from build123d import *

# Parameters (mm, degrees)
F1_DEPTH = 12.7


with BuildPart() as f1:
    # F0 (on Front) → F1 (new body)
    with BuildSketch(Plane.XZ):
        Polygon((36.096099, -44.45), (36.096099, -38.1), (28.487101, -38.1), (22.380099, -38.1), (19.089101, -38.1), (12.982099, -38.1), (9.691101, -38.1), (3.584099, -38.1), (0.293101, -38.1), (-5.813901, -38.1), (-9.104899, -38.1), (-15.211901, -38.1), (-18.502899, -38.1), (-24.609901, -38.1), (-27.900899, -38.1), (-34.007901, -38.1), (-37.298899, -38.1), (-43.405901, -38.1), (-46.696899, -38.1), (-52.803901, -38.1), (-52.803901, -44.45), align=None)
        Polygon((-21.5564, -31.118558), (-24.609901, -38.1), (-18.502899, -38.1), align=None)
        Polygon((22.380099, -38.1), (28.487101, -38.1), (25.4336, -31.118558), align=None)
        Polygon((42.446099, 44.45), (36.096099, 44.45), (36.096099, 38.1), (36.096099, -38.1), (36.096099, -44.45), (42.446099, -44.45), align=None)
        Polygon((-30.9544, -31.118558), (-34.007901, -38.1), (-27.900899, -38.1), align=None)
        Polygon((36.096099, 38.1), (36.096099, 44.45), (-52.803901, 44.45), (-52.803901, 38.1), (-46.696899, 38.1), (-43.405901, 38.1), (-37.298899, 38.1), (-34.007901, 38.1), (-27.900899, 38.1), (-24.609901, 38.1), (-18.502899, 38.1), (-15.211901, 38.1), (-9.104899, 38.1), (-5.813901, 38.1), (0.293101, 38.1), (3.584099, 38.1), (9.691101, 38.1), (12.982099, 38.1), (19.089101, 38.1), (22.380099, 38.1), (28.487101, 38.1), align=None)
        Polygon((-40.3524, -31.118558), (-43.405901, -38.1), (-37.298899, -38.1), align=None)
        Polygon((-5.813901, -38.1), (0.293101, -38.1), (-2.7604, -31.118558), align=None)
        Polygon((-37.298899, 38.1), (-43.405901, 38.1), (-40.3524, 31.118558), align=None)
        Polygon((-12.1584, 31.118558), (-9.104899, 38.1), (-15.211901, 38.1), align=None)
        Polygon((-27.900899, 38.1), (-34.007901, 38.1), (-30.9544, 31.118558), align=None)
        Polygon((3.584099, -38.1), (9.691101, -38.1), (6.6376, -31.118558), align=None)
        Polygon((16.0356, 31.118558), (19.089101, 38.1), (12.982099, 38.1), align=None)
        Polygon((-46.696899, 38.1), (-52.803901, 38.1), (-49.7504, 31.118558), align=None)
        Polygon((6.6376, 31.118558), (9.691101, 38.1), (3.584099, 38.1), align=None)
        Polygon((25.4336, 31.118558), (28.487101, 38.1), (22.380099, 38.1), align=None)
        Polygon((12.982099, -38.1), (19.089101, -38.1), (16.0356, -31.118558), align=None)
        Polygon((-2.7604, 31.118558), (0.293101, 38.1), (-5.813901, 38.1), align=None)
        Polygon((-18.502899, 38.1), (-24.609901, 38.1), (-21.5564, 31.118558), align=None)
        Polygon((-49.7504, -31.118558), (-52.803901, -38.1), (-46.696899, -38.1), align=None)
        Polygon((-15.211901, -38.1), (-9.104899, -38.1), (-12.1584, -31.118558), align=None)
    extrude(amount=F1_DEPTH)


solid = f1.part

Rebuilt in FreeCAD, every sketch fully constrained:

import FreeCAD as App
import Part
import Sketcher
from FreeCAD import Vector
Q = App.Units.Quantity

doc = App.newDocument("Part")
body = doc.addObject("PartDesign::Body", "Body")

# Sketch on XZ plane
sketch1 = body.newObject("Sketcher::SketchObject", "Sketch")
sketch1.AttachmentSupport = (doc.getObject("XZ_Plane"), [""])
sketch1.MapMode = "FlatFace"
sketch1.addGeometry(Part.LineSegment(Vector(36.1, -38.1, 0), Vector(28.5, -38.1, 0)), False)
sketch1.addGeometry(Part.LineSegment(Vector(28.5, -38.1, 0), Vector(25.4, -31.1, 0)), False)
sketch1.addGeometry(Part.LineSegment(Vector(25.4, -31.1, 0), Vector(22.4, -38.1, 0)), False)
sketch1.addGeometry(Part.LineSegment(Vector(22.4, -38.1, 0), Vector(19.1, -38.1, 0)), False)
sketch1.addGeometry(Part.LineSegment(Vector(19.1, -38.1, 0), Vector(16, -31.1, 0)), False)
sketch1.addGeometry(Part.LineSegment(Vector(16, -31.1, 0), Vector(13, -38.1, 0)), False)
sketch1.addGeometry(Part.LineSegment(Vector(13, -38.1, 0), Vector(9.7, -38.1, 0)), False)
sketch1.addGeometry(Part.LineSegment(Vector(9.7, -38.1, 0), Vector(6.6, -31.1, 0)), False)
sketch1.addGeometry(Part.LineSegment(Vector(6.6, -31.1, 0), Vector(3.6, -38.1, 0)), False)
sketch1.addGeometry(Part.LineSegment(Vector(3.6, -38.1, 0), Vector(0.3, -38.1, 0)), False)
sketch1.addGeometry(Part.LineSegment(Vector(0.3, -38.1, 0), Vector(-2.8, -31.1, 0)), False)
sketch1.addGeometry(Part.LineSegment(Vector(-2.8, -31.1, 0), Vector(-5.8, -38.1, 0)), False)
sketch1.addGeometry(Part.LineSegment(Vector(-5.8, -38.1, 0), Vector(-9.1, -38.1, 0)), False)
sketch1.addGeometry(Part.LineSegment(Vector(-9.1, -38.1, 0), Vector(-12.2, -31.1, 0)), False)
sketch1.addGeometry(Part.LineSegment(Vector(-12.2, -31.1, 0), Vector(-15.2, -38.1, 0)), False)
sketch1.addGeometry(Part.LineSegment(Vector(-15.2, -38.1, 0), Vector(-18.5, -38.1, 0)), False)
sketch1.addGeometry(Part.LineSegment(Vector(-18.5, -38.1, 0), Vector(-21.6, -31.1, 0)), False)
sketch1.addGeometry(Part.LineSegment(Vector(-21.6, -31.1, 0), Vector(-24.6, -38.1, 0)), False)
sketch1.addGeometry(Part.LineSegment(Vector(-24.6, -38.1, 0), Vector(-27.9, -38.1, 0)), False)
sketch1.addGeometry(Part.LineSegment(Vector(-27.9, -38.1, 0), Vector(-31, -31.1, 0)), False)
sketch1.addGeometry(Part.LineSegment(Vector(-31, -31.1, 0), Vector(-34, -38.1, 0)), False)
sketch1.addGeometry(Part.LineSegment(Vector(-34, -38.1, 0), Vector(-37.3, -38.1, 0)), False)
sketch1.addGeometry(Part.LineSegment(Vector(-37.3, -38.1, 0), Vector(-40.4, -31.1, 0)), False)
sketch1.addGeometry(Part.LineSegment(Vector(-40.4, -31.1, 0), Vector(-43.4, -38.1, 0)), False)
sketch1.addGeometry(Part.LineSegment(Vector(-43.4, -38.1, 0), Vector(-46.7, -38.1, 0)), False)
sketch1.addGeometry(Part.LineSegment(Vector(-46.7, -38.1, 0), Vector(-49.8, -31.1, 0)), False)
sketch1.addGeometry(Part.LineSegment(Vector(-49.8, -31.1, 0), Vector(-52.8, -38.1, 0)), False)
sketch1.addGeometry(Part.LineSegment(Vector(-52.8, -38.1, 0), Vector(-52.8, -44.5, 0)), False)
sketch1.addGeometry(Part.LineSegment(Vector(-52.8, -44.5, 0), Vector(42.4, -44.5, 0)), False)
sketch1.addGeometry(Part.LineSegment(Vector(42.4, -44.5, 0), Vector(42.4, 44.5, 0)), False)
sketch1.addGeometry(Part.LineSegment(Vector(42.4, 44.5, 0), Vector(-52.8, 44.5, 0)), False)
sketch1.addGeometry(Part.LineSegment(Vector(-52.8, 44.5, 0), Vector(-52.8, 38.1, 0)), False)
sketch1.addGeometry(Part.LineSegment(Vector(-52.8, 38.1, 0), Vector(-49.8, 31.1, 0)), False)
sketch1.addGeometry(Part.LineSegment(Vector(-49.8, 31.1, 0), Vector(-46.7, 38.1, 0)), False)
sketch1.addGeometry(Part.LineSegment(Vector(-46.7, 38.1, 0), Vector(-43.4, 38.1, 0)), False)
sketch1.addGeometry(Part.LineSegment(Vector(-43.4, 38.1, 0), Vector(-40.4, 31.1, 0)), False)
sketch1.addGeometry(Part.LineSegment(Vector(-40.4, 31.1, 0), Vector(-37.3, 38.1, 0)), False)
sketch1.addGeometry(Part.LineSegment(Vector(-37.3, 38.1, 0), Vector(-34, 38.1, 0)), False)
sketch1.addGeometry(Part.LineSegment(Vector(-34, 38.1, 0), Vector(-31, 31.1, 0)), False)
sketch1.addGeometry(Part.LineSegment(Vector(-31, 31.1, 0), Vector(-27.9, 38.1, 0)), False)
sketch1.addGeometry(Part.LineSegment(Vector(-27.9, 38.1, 0), Vector(-24.6, 38.1, 0)), False)
sketch1.addGeometry(Part.LineSegment(Vector(-24.6, 38.1, 0), Vector(-21.6, 31.1, 0)), False)
sketch1.addGeometry(Part.LineSegment(Vector(-21.6, 31.1, 0), Vector(-18.5, 38.1, 0)), False)
sketch1.addGeometry(Part.LineSegment(Vector(-18.5, 38.1, 0), Vector(-15.2, 38.1, 0)), False)
sketch1.addGeometry(Part.LineSegment(Vector(-15.2, 38.1, 0), Vector(-12.2, 31.1, 0)), False)
sketch1.addGeometry(Part.LineSegment(Vector(-12.2, 31.1, 0), Vector(-9.1, 38.1, 0)), False)
sketch1.addGeometry(Part.LineSegment(Vector(-9.1, 38.1, 0), Vector(-5.8, 38.1, 0)), False)
sketch1.addGeometry(Part.LineSegment(Vector(-5.8, 38.1, 0), Vector(-2.8, 31.1, 0)), False)
sketch1.addGeometry(Part.LineSegment(Vector(-2.8, 31.1, 0), Vector(0.3, 38.1, 0)), False)
sketch1.addGeometry(Part.LineSegment(Vector(0.3, 38.1, 0), Vector(3.6, 38.1, 0)), False)
sketch1.addGeometry(Part.LineSegment(Vector(3.6, 38.1, 0), Vector(6.6, 31.1, 0)), False)
sketch1.addGeometry(Part.LineSegment(Vector(6.6, 31.1, 0), Vector(9.7, 38.1, 0)), False)
sketch1.addGeometry(Part.LineSegment(Vector(9.7, 38.1, 0), Vector(13, 38.1, 0)), False)
sketch1.addGeometry(Part.LineSegment(Vector(13, 38.1, 0), Vector(16, 31.1, 0)), False)
sketch1.addGeometry(Part.LineSegment(Vector(16, 31.1, 0), Vector(19.1, 38.1, 0)), False)
sketch1.addGeometry(Part.LineSegment(Vector(19.1, 38.1, 0), Vector(22.4, 38.1, 0)), False)
sketch1.addGeometry(Part.LineSegment(Vector(22.4, 38.1, 0), Vector(25.4, 31.1, 0)), False)
sketch1.addGeometry(Part.LineSegment(Vector(25.4, 31.1, 0), Vector(28.5, 38.1, 0)), False)
sketch1.addGeometry(Part.LineSegment(Vector(28.5, 38.1, 0), Vector(36.1, 38.1, 0)), False)
sketch1.addGeometry(Part.LineSegment(Vector(36.1, 38.1, 0), Vector(36.1, -38.1, 0)), False)
sketch1.addConstraint(Sketcher.Constraint("Coincident", 0, 2, 1, 1))
sketch1.addConstraint(Sketcher.Constraint("Coincident", 1, 2, 2, 1))
sketch1.addConstraint(Sketcher.Constraint("Coincident", 2, 2, 3, 1))
sketch1.addConstraint(Sketcher.Constraint("Coincident", 3, 2, 4, 1))
sketch1.addConstraint(Sketcher.Constraint("Coincident", 4, 2, 5, 1))
sketch1.addConstraint(Sketcher.Constraint("Coincident", 5, 2, 6, 1))
sketch1.addConstraint(Sketcher.Constraint("Coincident", 6, 2, 7, 1))
sketch1.addConstraint(Sketcher.Constraint("Coincident", 7, 2, 8, 1))
sketch1.addConstraint(Sketcher.Constraint("Coincident", 8, 2, 9, 1))
sketch1.addConstraint(Sketcher.Constraint("Coincident", 9, 2, 10, 1))
sketch1.addConstraint(Sketcher.Constraint("Coincident", 10, 2, 11, 1))
sketch1.addConstraint(Sketcher.Constraint("Coincident", 11, 2, 12, 1))
sketch1.addConstraint(Sketcher.Constraint("Coincident", 12, 2, 13, 1))
sketch1.addConstraint(Sketcher.Constraint("Coincident", 13, 2, 14, 1))
sketch1.addConstraint(Sketcher.Constraint("Coincident", 14, 2, 15, 1))
sketch1.addConstraint(Sketcher.Constraint("Coincident", 15, 2, 16, 1))
sketch1.addConstraint(Sketcher.Constraint("Coincident", 16, 2, 17, 1))
sketch1.addConstraint(Sketcher.Constraint("Coincident", 17, 2, 18, 1))
sketch1.addConstraint(Sketcher.Constraint("Coincident", 18, 2, 19, 1))
sketch1.addConstraint(Sketcher.Constraint("Coincident", 19, 2, 20, 1))
sketch1.addConstraint(Sketcher.Constraint("Coincident", 20, 2, 21, 1))
sketch1.addConstraint(Sketcher.Constraint("Coincident", 21, 2, 22, 1))
sketch1.addConstraint(Sketcher.Constraint("Coincident", 22, 2, 23, 1))
sketch1.addConstraint(Sketcher.Constraint("Coincident", 23, 2, 24, 1))
sketch1.addConstraint(Sketcher.Constraint("Coincident", 24, 2, 25, 1))
sketch1.addConstraint(Sketcher.Constraint("Coincident", 25, 2, 26, 1))
sketch1.addConstraint(Sketcher.Constraint("Coincident", 26, 2, 27, 1))
sketch1.addConstraint(Sketcher.Constraint("Coincident", 27, 2, 28, 1))
sketch1.addConstraint(Sketcher.Constraint("Coincident", 28, 2, 29, 1))
sketch1.addConstraint(Sketcher.Constraint("Coincident", 29, 2, 30, 1))
sketch1.addConstraint(Sketcher.Constraint("Coincident", 30, 2, 31, 1))
sketch1.addConstraint(Sketcher.Constraint("Coincident", 31, 2, 32, 1))
sketch1.addConstraint(Sketcher.Constraint("Coincident", 32, 2, 33, 1))
sketch1.addConstraint(Sketcher.Constraint("Coincident", 33, 2, 34, 1))
sketch1.addConstraint(Sketcher.Constraint("Coincident", 34, 2, 35, 1))
sketch1.addConstraint(Sketcher.Constraint("Coincident", 35, 2, 36, 1))
sketch1.addConstraint(Sketcher.Constraint("Coincident", 36, 2, 37, 1))
sketch1.addConstraint(Sketcher.Constraint("Coincident", 37, 2, 38, 1))
sketch1.addConstraint(Sketcher.Constraint("Coincident", 38, 2, 39, 1))
sketch1.addConstraint(Sketcher.Constraint("Coincident", 39, 2, 40, 1))
sketch1.addConstraint(Sketcher.Constraint("Coincident", 40, 2, 41, 1))
sketch1.addConstraint(Sketcher.Constraint("Coincident", 41, 2, 42, 1))
sketch1.addConstraint(Sketcher.Constraint("Coincident", 42, 2, 43, 1))
sketch1.addConstraint(Sketcher.Constraint("Coincident", 43, 2, 44, 1))
sketch1.addConstraint(Sketcher.Constraint("Coincident", 44, 2, 45, 1))
sketch1.addConstraint(Sketcher.Constraint("Coincident", 45, 2, 46, 1))
sketch1.addConstraint(Sketcher.Constraint("Coincident", 46, 2, 47, 1))
sketch1.addConstraint(Sketcher.Constraint("Coincident", 47, 2, 48, 1))
sketch1.addConstraint(Sketcher.Constraint("Coincident", 48, 2, 49, 1))
sketch1.addConstraint(Sketcher.Constraint("Coincident", 49, 2, 50, 1))
sketch1.addConstraint(Sketcher.Constraint("Coincident", 50, 2, 51, 1))
sketch1.addConstraint(Sketcher.Constraint("Coincident", 51, 2, 52, 1))
sketch1.addConstraint(Sketcher.Constraint("Coincident", 52, 2, 53, 1))
sketch1.addConstraint(Sketcher.Constraint("Coincident", 53, 2, 54, 1))
sketch1.addConstraint(Sketcher.Constraint("Coincident", 54, 2, 55, 1))
sketch1.addConstraint(Sketcher.Constraint("Coincident", 55, 2, 56, 1))
sketch1.addConstraint(Sketcher.Constraint("Coincident", 56, 2, 57, 1))
sketch1.addConstraint(Sketcher.Constraint("Coincident", 57, 2, 58, 1))
sketch1.addConstraint(Sketcher.Constraint("Coincident", 58, 2, 59, 1))
sketch1.addConstraint(Sketcher.Constraint("Coincident", 59, 2, 0, 1))
sketch1.addConstraint(Sketcher.Constraint("Horizontal", 0))
sketch1.addConstraint(Sketcher.Constraint("Horizontal", 3))
sketch1.addConstraint(Sketcher.Constraint("Horizontal", 6))
sketch1.addConstraint(Sketcher.Constraint("Horizontal", 9))
sketch1.addConstraint(Sketcher.Constraint("Horizontal", 12))
sketch1.addConstraint(Sketcher.Constraint("Horizontal", 15))
sketch1.addConstraint(Sketcher.Constraint("Horizontal", 18))
sketch1.addConstraint(Sketcher.Constraint("Horizontal", 21))
sketch1.addConstraint(Sketcher.Constraint("Horizontal", 24))
sketch1.addConstraint(Sketcher.Constraint("Vertical", 27))
sketch1.addConstraint(Sketcher.Constraint("Horizontal", 28))
sketch1.addConstraint(Sketcher.Constraint("Vertical", 29))
sketch1.addConstraint(Sketcher.Constraint("Horizontal", 30))
sketch1.addConstraint(Sketcher.Constraint("Vertical", 31))
sketch1.addConstraint(Sketcher.Constraint("Horizontal", 34))
sketch1.addConstraint(Sketcher.Constraint("Horizontal", 37))
sketch1.addConstraint(Sketcher.Constraint("Horizontal", 40))
sketch1.addConstraint(Sketcher.Constraint("Horizontal", 43))
sketch1.addConstraint(Sketcher.Constraint("Horizontal", 46))
sketch1.addConstraint(Sketcher.Constraint("Horizontal", 49))
sketch1.addConstraint(Sketcher.Constraint("Horizontal", 52))
sketch1.addConstraint(Sketcher.Constraint("Horizontal", 55))
sketch1.addConstraint(Sketcher.Constraint("Horizontal", 58))
sketch1.addConstraint(Sketcher.Constraint("Vertical", 59))
sketch1.addConstraint(Sketcher.Constraint("Symmetric", 27, 2, 30, 2, -1))
sketch1.addConstraint(Sketcher.Constraint("Symmetric", 25, 2, 32, 2, -1))
sketch1.addConstraint(Sketcher.Constraint("Symmetric", 24, 2, 33, 2, -1))
sketch1.addConstraint(Sketcher.Constraint("Symmetric", 22, 2, 35, 2, -1))
sketch1.addConstraint(Sketcher.Constraint("Symmetric", 21, 2, 36, 2, -1))
sketch1.addConstraint(Sketcher.Constraint("Symmetric", 19, 2, 38, 2, -1))
sketch1.addConstraint(Sketcher.Constraint("Symmetric", 18, 2, 39, 2, -1))
sketch1.addConstraint(Sketcher.Constraint("Symmetric", 16, 2, 41, 2, -1))
sketch1.addConstraint(Sketcher.Constraint("Symmetric", 15, 2, 42, 2, -1))
sketch1.addConstraint(Sketcher.Constraint("Symmetric", 13, 2, 44, 2, -1))
sketch1.addConstraint(Sketcher.Constraint("Symmetric", 12, 2, 45, 2, -1))
sketch1.addConstraint(Sketcher.Constraint("Symmetric", 10, 2, 47, 2, -1))
sketch1.addConstraint(Sketcher.Constraint("Symmetric", 9, 2, 48, 2, -1))
sketch1.addConstraint(Sketcher.Constraint("Symmetric", 7, 2, 50, 2, -1))
sketch1.addConstraint(Sketcher.Constraint("Symmetric", 6, 2, 51, 2, -1))
sketch1.addConstraint(Sketcher.Constraint("Symmetric", 4, 2, 53, 2, -1))
sketch1.addConstraint(Sketcher.Constraint("Symmetric", 3, 2, 54, 2, -1))
sketch1.addConstraint(Sketcher.Constraint("Symmetric", 1, 2, 56, 2, -1))
sketch1.addConstraint(Sketcher.Constraint("Symmetric", 0, 2, 57, 2, -1))
sketch1.addConstraint(Sketcher.Constraint("Parallel", 1, 4))
sketch1.addConstraint(Sketcher.Constraint("Parallel", 2, 5))
sketch1.addConstraint(Sketcher.Constraint("Parallel", 4, 7))
sketch1.addConstraint(Sketcher.Constraint("Parallel", 5, 8))
sketch1.addConstraint(Sketcher.Constraint("Parallel", 7, 10))
sketch1.addConstraint(Sketcher.Constraint("Parallel", 8, 11))
sketch1.addConstraint(Sketcher.Constraint("Parallel", 10, 13))
sketch1.addConstraint(Sketcher.Constraint("Parallel", 11, 14))
sketch1.addConstraint(Sketcher.Constraint("Parallel", 13, 16))
sketch1.addConstraint(Sketcher.Constraint("Parallel", 14, 17))
sketch1.addConstraint(Sketcher.Constraint("Parallel", 16, 19))
sketch1.addConstraint(Sketcher.Constraint("Parallel", 17, 20))
sketch1.addConstraint(Sketcher.Constraint("Parallel", 19, 22))
sketch1.addConstraint(Sketcher.Constraint("Parallel", 20, 23))
sketch1.addConstraint(Sketcher.Constraint("Parallel", 22, 25))
sketch1.addConstraint(Sketcher.Constraint("Parallel", 23, 26))
sketch1.addConstraint(Sketcher.Constraint("Parallel", 25, 32))
sketch1.addConstraint(Sketcher.Constraint("Parallel", 26, 33))
sketch1.addConstraint(Sketcher.Constraint("Parallel", 32, 35))
sketch1.addConstraint(Sketcher.Constraint("Parallel", 35, 38))
sketch1.addConstraint(Sketcher.Constraint("Parallel", 38, 41))
sketch1.addConstraint(Sketcher.Constraint("Parallel", 41, 44))
sketch1.addConstraint(Sketcher.Constraint("Parallel", 44, 47))
sketch1.addConstraint(Sketcher.Constraint("Parallel", 47, 50))
sketch1.addConstraint(Sketcher.Constraint("Parallel", 50, 53))
sketch1.addConstraint(Sketcher.Constraint("Parallel", 53, 56))
sketch1.addConstraint(Sketcher.Constraint("Horizontal", 0, 2, 2, 2))
sketch1.addConstraint(Sketcher.Constraint("Horizontal", 1, 2, 4, 2))
sketch1.addConstraint(Sketcher.Constraint("Horizontal", 3, 2, 5, 2))
sketch1.addConstraint(Sketcher.Constraint("Horizontal", 4, 2, 7, 2))
sketch1.addConstraint(Sketcher.Constraint("Horizontal", 6, 2, 8, 2))
sketch1.addConstraint(Sketcher.Constraint("Horizontal", 7, 2, 10, 2))
sketch1.addConstraint(Sketcher.Constraint("Horizontal", 9, 2, 11, 2))
sketch1.addConstraint(Sketcher.Constraint("Horizontal", 10, 2, 13, 2))
sketch1.addConstraint(Sketcher.Constraint("Horizontal", 12, 2, 14, 2))
sketch1.addConstraint(Sketcher.Constraint("Horizontal", 13, 2, 16, 2))
sketch1.addConstraint(Sketcher.Constraint("Horizontal", 15, 2, 17, 2))
sketch1.addConstraint(Sketcher.Constraint("Horizontal", 16, 2, 19, 2))
sketch1.addConstraint(Sketcher.Constraint("Horizontal", 18, 2, 20, 2))
sketch1.addConstraint(Sketcher.Constraint("Horizontal", 19, 2, 22, 2))
sketch1.addConstraint(Sketcher.Constraint("Horizontal", 21, 2, 23, 2))
sketch1.addConstraint(Sketcher.Constraint("Horizontal", 22, 2, 25, 2))
sketch1.addConstraint(Sketcher.Constraint("Horizontal", 24, 2, 26, 2))
sketch1.addConstraint(Sketcher.Constraint("Equal", 3, 6))
sketch1.addConstraint(Sketcher.Constraint("Equal", 6, 9))
sketch1.addConstraint(Sketcher.Constraint("Equal", 9, 12))
sketch1.addConstraint(Sketcher.Constraint("Equal", 12, 15))
sketch1.addConstraint(Sketcher.Constraint("Equal", 15, 18))
sketch1.addConstraint(Sketcher.Constraint("Equal", 18, 21))
sketch1.addConstraint(Sketcher.Constraint("Equal", 21, 24))
sketch1.addConstraint(Sketcher.Constraint("DistanceY", 59, 2, 59, 1, Q("3 in")))
sketch1.addConstraint(Sketcher.Constraint("DistanceY", 29, 1, 29, 2, Q("3.5 in")))
sketch1.addConstraint(Sketcher.Constraint("Distance", 1, Q("0.3 in")))
sketch1.addConstraint(Sketcher.Constraint("DistanceX", 28, 1, 28, 2, Q("3.75 in")))
sketch1.addConstraint(Sketcher.Constraint("DistanceX", 3, 2, 0, 2, Q("0.37 in")))
sketch1.addConstraint(Sketcher.Constraint("DistanceX", 58, 2, 29, 2, Q("0.25 in")))
sketch1.addConstraint(Sketcher.Constraint("DistanceX", 0, 2, 0, 1, 7.608998))
sketch1.addConstraint(Sketcher.Constraint("DistanceX", -1, 1, 0, 2, 28.487101))
pad1 = body.newObject("PartDesign::Pad", "Pad")
pad1.Profile = sketch1
pad1.Length = Q("0.5 in")

doc.recompute()
